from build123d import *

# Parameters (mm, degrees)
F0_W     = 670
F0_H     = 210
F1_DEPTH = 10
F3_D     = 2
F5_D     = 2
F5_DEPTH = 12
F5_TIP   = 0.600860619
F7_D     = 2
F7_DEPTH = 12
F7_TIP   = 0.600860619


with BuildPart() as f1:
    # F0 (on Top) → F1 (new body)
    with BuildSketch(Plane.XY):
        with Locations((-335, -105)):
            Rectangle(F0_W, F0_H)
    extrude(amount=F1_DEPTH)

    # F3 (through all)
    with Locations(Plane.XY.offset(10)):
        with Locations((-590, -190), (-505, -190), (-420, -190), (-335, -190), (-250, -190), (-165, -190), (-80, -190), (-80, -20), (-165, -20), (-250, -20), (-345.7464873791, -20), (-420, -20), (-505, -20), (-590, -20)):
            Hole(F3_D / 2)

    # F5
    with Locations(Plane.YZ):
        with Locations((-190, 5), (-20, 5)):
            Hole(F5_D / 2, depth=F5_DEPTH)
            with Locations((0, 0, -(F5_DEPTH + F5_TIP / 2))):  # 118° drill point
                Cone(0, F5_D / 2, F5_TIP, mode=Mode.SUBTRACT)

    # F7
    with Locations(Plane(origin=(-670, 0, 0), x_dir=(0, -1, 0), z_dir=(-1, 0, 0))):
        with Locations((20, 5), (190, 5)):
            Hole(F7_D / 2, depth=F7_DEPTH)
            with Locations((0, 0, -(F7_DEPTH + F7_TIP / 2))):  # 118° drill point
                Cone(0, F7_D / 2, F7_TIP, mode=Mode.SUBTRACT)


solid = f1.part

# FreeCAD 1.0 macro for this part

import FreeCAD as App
import Part
import Sketcher

V = App.Vector
Q = App.Units.Quantity


def add_polygon(sketch, points):
    """Adds a closed chain of lines whose ends are joined by coincident constraints."""
    first, n = sketch.GeometryCount, len(points)
    for a, b in zip(points, points[1:] + points[:1]):
        sketch.addGeometry(Part.LineSegment(App.Vector(*a, 0), App.Vector(*b, 0)), False)
    for i in range(n):
        sketch.addConstraint(Sketcher.Constraint("Coincident", first + i, 2, first + (i + 1) % n, 1))

doc = App.newDocument("Part")
body = doc.addObject("PartDesign::Body", "Body")

# Sketch on XY plane
sketch1 = body.newObject("Sketcher::SketchObject", "Sketch")
sketch1.AttachmentSupport = (doc.getObject("XY_Plane"), [""])
sketch1.MapMode = "FlatFace"
add_polygon(sketch1, [(-670, 0), (-670, -210), (0, -210), (0, 0)])  # lines 0-3
sketch1.addConstraint(Sketcher.Constraint("Vertical", 0))
sketch1.addConstraint(Sketcher.Constraint("Horizontal", 1))
sketch1.addConstraint(Sketcher.Constraint("Vertical", 2))
sketch1.addConstraint(Sketcher.Constraint("Horizontal", 3))
sketch1.addConstraint(Sketcher.Constraint("Coincident", 2, 2, -1, 1))
sketch1.addConstraint(Sketcher.Constraint("DistanceX", 1, 1, 1, 2, Q("670 mm")))
sketch1.addConstraint(Sketcher.Constraint("DistanceY", 0, 2, 0, 1, Q("210 mm")))
pad1 = body.newObject("PartDesign::Pad", "Pad")
pad1.Profile = sketch1
pad1.Length = 10

# Sketch on XY plane
sketch2 = body.newObject("Sketcher::SketchObject", "Sketch001")
sketch2.AttachmentSupport = (doc.getObject("XY_Plane"), [""])
sketch2.MapMode = "FlatFace"
sketch2.AttachmentOffset = App.Placement(V(0, 0, 10), App.Rotation())
sketch2.addGeometry(Part.Circle(V(-590, -190, 0), V(0, 0, 1), 1), False)
sketch2.addGeometry(Part.Circle(V(-505, -190, 0), V(0, 0, 1), 1), False)
sketch2.addGeometry(Part.Circle(V(-420, -190, 0), V(0, 0, 1), 1), False)
sketch2.addGeometry(Part.Circle(V(-335, -190, 0), V(0, 0, 1), 1), False)
sketch2.addGeometry(Part.Circle(V(-250, -190, 0), V(0, 0, 1), 1), False)
sketch2.addGeometry(Part.Circle(V(-165, -190, 0), V(0, 0, 1), 1), False)
sketch2.addGeometry(Part.Circle(V(-80, -190, 0), V(0, 0, 1), 1), False)
sketch2.addGeometry(Part.Circle(V(-80, -20, 0), V(0, 0, 1), 1), False)
sketch2.addGeometry(Part.Circle(V(-165, -20, 0), V(0, 0, 1), 1), False)
sketch2.addGeometry(Part.Circle(V(-250, -20, 0), V(0, 0, 1), 1), False)
sketch2.addGeometry(Part.Circle(V(-345.746487, -20, 0), V(0, 0, 1), 1), False)
sketch2.addGeometry(Part.Circle(V(-420, -20, 0), V(0, 0, 1), 1), False)
sketch2.addGeometry(Part.Circle(V(-505, -20, 0), V(0, 0, 1), 1), False)
sketch2.addGeometry(Part.Circle(V(-590, -20, 0), V(0, 0, 1), 1), False)
sketch2.addConstraint(Sketcher.Constraint("Equal", 0, 1))
sketch2.addConstraint(Sketcher.Constraint("Equal", 1, 2))
sketch2.addConstraint(Sketcher.Constraint("Equal", 2, 3))
sketch2.addConstraint(Sketcher.Constraint("Equal", 3, 4))
sketch2.addConstraint(Sketcher.Constraint("Equal", 4, 5))
sketch2.addConstraint(Sketcher.Constraint("Equal", 5, 6))
sketch2.addConstraint(Sketcher.Constraint("Equal", 6, 7))
sketch2.addConstraint(Sketcher.Constraint("Equal", 7, 8))
sketch2.addConstraint(Sketcher.Constraint("Equal", 8, 9))
sketch2.addConstraint(Sketcher.Constraint("Equal", 9, 10))
sketch2.addConstraint(Sketcher.Constraint("Equal", 10, 11))
sketch2.addConstraint(Sketcher.Constraint("Equal", 11, 12))
sketch2.addConstraint(Sketcher.Constraint("Equal", 12, 13))
sketch2.addConstraint(Sketcher.Constraint("Horizontal", 0, 3, 1, 3))
sketch2.addConstraint(Sketcher.Constraint("Horizontal", 1, 3, 2, 3))
sketch2.addConstraint(Sketcher.Constraint("Horizontal", 2, 3, 3, 3))
sketch2.addConstraint(Sketcher.Constraint("Horizontal", 3, 3, 4, 3))
sketch2.addConstraint(Sketcher.Constraint("Horizontal", 4, 3, 5, 3))
sketch2.addConstraint(Sketcher.Constraint("Horizontal", 5, 3, 6, 3))
sketch2.addConstraint(Sketcher.Constraint("Horizontal", 7, 3, 8, 3))
sketch2.addConstraint(Sketcher.Constraint("Horizontal", 8, 3, 9, 3))
sketch2.addConstraint(Sketcher.Constraint("Horizontal", 9, 3, 10, 3))
sketch2.addConstraint(Sketcher.Constraint("Horizontal", 10, 3, 11, 3))
sketch2.addConstraint(Sketcher.Constraint("Horizontal", 11, 3, 12, 3))
sketch2.addConstraint(Sketcher.Constraint("Horizontal", 12, 3, 13, 3))
sketch2.addConstraint(Sketcher.Constraint("Vertical", 6, 3, 7, 3))
sketch2.addConstraint(Sketcher.Constraint("Vertical", 5, 3, 8, 3))
sketch2.addConstraint(Sketcher.Constraint("Vertical", 4, 3, 9, 3))
sketch2.addConstraint(Sketcher.Constraint("Vertical", 2, 3, 11, 3))
sketch2.addConstraint(Sketcher.Constraint("Vertical", 1, 3, 12, 3))
sketch2.addConstraint(Sketcher.Constraint("Vertical", 0, 3, 13, 3))
sketch2.addConstraint(Sketcher.Constraint("Diameter", 0, Q("2 mm")))
sketch2.addConstraint(Sketcher.Constraint("DistanceX", 0, 3, -1, 1, Q("590 mm")))
sketch2.addConstraint(Sketcher.Constraint("DistanceY", 0, 3, -1, 1, Q("190 mm")))
sketch2.addConstraint(Sketcher.Constraint("DistanceX", 1, 3, -1, 1, Q("505 mm")))
sketch2.addConstraint(Sketcher.Constraint("DistanceX", 2, 3, -1, 1, Q("420 mm")))
sketch2.addConstraint(Sketcher.Constraint("DistanceX", 3, 3, -1, 1, Q("335 mm")))
sketch2.addConstraint(Sketcher.Constraint("DistanceX", 4, 3, -1, 1, Q("250 mm")))
sketch2.addConstraint(Sketcher.Constraint("DistanceX", 5, 3, -1, 1, Q("165 mm")))
sketch2.addConstraint(Sketcher.Constraint("DistanceX", 6, 3, -1, 1, Q("80 mm")))
sketch2.addConstraint(Sketcher.Constraint("DistanceY", 7, 3, -1, 1, Q("20 mm")))
sketch2.addConstraint(Sketcher.Constraint("DistanceX", 10, 3, -1, 1, Q("345.746487 mm")))
doc.recompute()
hole = body.newObject("PartDesign::Hole", "Hole")
hole.Profile = sketch2
hole.ThreadType = "None"
hole.Diameter = 2
hole.DepthType = "ThroughAll"

# Sketch on YZ plane
sketch3 = body.newObject("Sketcher::SketchObject", "Sketch002")
sketch3.AttachmentSupport = (doc.getObject("YZ_Plane"), [""])
sketch3.MapMode = "FlatFace"
sketch3.addGeometry(Part.Circle(V(-190, 5, 0), V(0, 0, 1), 1), False)
sketch3.addGeometry(Part.Circle(V(-20, 5, 0), V(0, 0, 1), 1), False)
sketch3.addConstraint(Sketcher.Constraint("Equal", 0, 1))
sketch3.addConstraint(Sketcher.Constraint("Horizontal", 0, 3, 1, 3))
sketch3.addConstraint(Sketcher.Constraint("Diameter", 0, Q("2 mm")))
sketch3.addConstraint(Sketcher.Constraint("DistanceX", 0, 3, -1, 1, Q("190 mm")))
sketch3.addConstraint(Sketcher.Constraint("DistanceY", -1, 1, 0, 3, Q("5 mm")))
sketch3.addConstraint(Sketcher.Constraint("DistanceX", 1, 3, -1, 1, Q("20 mm")))
doc.recompute()
hole2 = body.newObject("PartDesign::Hole", "Hole001")
hole2.Profile = sketch3
hole2.ThreadType = "None"
hole2.Diameter = 2
hole2.DepthType = "Dimension"
hole2.Depth = 12
hole2.DrillPoint = "Angled"
hole2.DrillPointAngle = 118

# Sketch on YZ plane
sketch4 = body.newObject("Sketcher::SketchObject", "Sketch003")
sketch4.AttachmentSupport = (doc.getObject("YZ_Plane"), [""])
sketch4.MapMode = "FlatFace"
sketch4.AttachmentOffset = App.Placement(V(0, 0, -670), App.Rotation())
sketch4.addGeometry(Part.Circle(V(-20, 5, 0), V(0, 0, 1), 1), False)
sketch4.addGeometry(Part.Circle(V(-190, 5, 0), V(0, 0, 1), 1), False)
sketch4.addConstraint(Sketcher.Constraint("Equal", 0, 1))
sketch4.addConstraint(Sketcher.Constraint("Horizontal", 0, 3, 1, 3))
sketch4.addConstraint(Sketcher.Constraint("Diameter", 0, Q("2 mm")))
sketch4.addConstraint(Sketcher.Constraint("DistanceX", 0, 3, -1, 1, Q("20 mm")))
sketch4.addConstraint(Sketcher.Constraint("DistanceY", -1, 1, 0, 3, Q("5 mm")))
sketch4.addConstraint(Sketcher.Constraint("DistanceX", 1, 3, -1, 1, Q("190 mm")))
doc.recompute()
hole3 = body.newObject("PartDesign::Hole", "Hole002")
hole3.Profile = sketch4
hole3.ThreadType = "None"
hole3.Diameter = 2
hole3.DepthType = "Dimension"
hole3.Depth = 12
hole3.DrillPoint = "Angled"
hole3.DrillPointAngle = 118
hole3.Reversed = True

doc.recompute()
